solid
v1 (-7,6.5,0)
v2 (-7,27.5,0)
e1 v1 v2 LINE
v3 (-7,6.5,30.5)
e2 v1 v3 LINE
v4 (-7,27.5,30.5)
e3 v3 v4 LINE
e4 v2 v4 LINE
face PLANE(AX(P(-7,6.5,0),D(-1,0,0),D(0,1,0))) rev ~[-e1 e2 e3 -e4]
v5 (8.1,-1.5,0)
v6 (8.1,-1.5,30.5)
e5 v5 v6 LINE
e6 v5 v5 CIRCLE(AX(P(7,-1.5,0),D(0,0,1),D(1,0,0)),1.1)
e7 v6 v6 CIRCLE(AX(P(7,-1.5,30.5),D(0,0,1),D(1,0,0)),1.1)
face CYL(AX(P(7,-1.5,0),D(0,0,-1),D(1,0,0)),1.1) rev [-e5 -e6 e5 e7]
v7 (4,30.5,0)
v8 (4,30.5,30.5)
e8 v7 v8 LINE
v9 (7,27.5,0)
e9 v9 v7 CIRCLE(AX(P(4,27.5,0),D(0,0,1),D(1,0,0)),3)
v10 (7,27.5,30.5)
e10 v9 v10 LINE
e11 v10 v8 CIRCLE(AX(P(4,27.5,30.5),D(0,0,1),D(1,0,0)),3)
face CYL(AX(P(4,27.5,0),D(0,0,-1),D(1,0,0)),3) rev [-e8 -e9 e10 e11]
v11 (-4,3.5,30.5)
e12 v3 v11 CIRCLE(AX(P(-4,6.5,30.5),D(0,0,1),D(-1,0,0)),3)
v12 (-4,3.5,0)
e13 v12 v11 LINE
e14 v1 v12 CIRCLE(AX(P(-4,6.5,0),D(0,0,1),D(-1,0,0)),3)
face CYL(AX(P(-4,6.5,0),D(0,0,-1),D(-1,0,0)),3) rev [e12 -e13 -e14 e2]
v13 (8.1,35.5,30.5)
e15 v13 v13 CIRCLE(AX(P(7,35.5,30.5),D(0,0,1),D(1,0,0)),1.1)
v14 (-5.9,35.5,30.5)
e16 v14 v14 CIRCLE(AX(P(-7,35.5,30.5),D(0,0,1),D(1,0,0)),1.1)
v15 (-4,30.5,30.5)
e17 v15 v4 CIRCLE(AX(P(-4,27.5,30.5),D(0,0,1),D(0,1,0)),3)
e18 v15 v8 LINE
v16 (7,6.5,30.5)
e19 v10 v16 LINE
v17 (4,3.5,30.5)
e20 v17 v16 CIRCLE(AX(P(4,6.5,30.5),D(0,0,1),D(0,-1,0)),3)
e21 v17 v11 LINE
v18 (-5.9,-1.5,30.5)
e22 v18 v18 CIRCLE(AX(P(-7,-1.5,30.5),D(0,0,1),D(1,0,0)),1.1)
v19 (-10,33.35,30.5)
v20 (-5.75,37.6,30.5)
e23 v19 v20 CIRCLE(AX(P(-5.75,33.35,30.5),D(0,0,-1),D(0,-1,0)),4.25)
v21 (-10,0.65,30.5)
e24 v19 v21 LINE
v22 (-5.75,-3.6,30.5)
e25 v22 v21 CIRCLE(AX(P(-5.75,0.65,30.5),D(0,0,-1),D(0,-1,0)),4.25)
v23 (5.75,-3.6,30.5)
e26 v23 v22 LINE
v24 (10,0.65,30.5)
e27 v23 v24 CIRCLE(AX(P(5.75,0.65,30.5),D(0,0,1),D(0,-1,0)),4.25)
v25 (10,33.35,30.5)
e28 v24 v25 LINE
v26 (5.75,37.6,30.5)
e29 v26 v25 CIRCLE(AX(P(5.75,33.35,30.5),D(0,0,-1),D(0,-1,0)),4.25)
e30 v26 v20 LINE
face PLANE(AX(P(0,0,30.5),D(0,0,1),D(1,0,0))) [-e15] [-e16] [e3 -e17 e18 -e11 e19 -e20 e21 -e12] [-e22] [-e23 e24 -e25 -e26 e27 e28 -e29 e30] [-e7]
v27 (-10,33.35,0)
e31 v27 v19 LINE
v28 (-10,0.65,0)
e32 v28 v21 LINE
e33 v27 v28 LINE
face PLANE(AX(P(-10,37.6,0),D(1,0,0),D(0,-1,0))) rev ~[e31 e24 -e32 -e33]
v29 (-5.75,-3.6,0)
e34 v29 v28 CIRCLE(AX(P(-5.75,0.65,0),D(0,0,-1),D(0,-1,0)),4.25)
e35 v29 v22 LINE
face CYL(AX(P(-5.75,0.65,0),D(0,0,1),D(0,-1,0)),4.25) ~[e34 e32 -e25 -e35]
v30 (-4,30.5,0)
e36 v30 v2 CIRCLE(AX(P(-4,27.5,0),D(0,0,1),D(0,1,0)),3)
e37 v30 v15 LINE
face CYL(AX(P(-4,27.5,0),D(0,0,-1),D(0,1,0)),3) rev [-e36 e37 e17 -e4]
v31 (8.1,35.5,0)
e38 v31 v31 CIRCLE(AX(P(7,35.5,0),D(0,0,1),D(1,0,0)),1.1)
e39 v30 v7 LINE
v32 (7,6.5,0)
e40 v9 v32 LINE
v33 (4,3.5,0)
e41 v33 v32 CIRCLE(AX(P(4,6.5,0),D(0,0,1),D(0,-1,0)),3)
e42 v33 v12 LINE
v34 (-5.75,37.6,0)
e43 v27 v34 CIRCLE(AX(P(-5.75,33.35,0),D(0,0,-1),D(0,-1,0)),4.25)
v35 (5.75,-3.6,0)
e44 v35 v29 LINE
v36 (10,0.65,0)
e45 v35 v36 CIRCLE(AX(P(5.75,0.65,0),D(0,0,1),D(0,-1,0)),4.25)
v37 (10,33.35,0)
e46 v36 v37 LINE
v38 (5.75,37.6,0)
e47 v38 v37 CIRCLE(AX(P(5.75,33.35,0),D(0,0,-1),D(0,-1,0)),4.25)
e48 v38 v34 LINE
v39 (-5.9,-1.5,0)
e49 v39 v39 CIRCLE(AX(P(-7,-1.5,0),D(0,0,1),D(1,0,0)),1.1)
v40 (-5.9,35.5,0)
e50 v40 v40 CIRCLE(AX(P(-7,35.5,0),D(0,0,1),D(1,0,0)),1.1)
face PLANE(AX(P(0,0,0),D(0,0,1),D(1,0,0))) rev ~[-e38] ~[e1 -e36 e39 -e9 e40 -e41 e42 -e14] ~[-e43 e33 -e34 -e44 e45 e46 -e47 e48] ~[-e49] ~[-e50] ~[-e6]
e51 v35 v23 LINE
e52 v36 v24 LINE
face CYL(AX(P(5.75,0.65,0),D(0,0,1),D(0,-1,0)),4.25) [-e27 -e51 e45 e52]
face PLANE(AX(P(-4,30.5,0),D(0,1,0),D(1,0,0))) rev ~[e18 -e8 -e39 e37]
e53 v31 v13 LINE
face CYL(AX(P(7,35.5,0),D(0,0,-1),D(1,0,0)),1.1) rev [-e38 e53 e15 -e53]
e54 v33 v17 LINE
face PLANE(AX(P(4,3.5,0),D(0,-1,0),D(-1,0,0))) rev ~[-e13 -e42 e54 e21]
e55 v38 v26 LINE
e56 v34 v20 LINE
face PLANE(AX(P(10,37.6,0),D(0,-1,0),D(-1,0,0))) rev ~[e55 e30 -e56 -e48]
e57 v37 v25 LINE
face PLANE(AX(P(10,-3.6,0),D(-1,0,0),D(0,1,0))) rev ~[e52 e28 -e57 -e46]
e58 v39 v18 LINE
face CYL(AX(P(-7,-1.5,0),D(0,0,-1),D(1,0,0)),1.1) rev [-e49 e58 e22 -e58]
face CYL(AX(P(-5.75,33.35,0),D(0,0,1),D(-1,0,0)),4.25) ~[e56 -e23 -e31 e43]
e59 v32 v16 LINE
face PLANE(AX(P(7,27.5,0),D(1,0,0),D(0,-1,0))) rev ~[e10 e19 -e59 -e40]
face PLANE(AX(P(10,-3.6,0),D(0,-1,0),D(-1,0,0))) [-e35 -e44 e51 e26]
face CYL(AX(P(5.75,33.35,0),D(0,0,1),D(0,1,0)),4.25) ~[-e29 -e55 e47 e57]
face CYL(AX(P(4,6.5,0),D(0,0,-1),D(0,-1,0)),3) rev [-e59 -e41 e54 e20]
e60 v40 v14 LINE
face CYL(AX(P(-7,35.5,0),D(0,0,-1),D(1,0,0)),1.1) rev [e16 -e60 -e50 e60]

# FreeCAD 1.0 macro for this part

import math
import FreeCAD as App
import Part
import Sketcher

V = App.Vector


def edges_at(feature, points):
    """Names of the edges that pass closest to the given points."""
    edges = feature.Shape.Edges
    near = lambda p: min(range(len(edges)), key=lambda i: edges[i].distToShape(Part.Vertex(*p))[0])
    return sorted({f"Edge{near(p) + 1}" for p in points})

doc = App.newDocument("Part")
params = doc.addObject("Spreadsheet::Sheet", "Params")
for row, (alias, value) in enumerate([
    ("sketch1_radius", "3 mm"),
    ("sketch1_diameter", "2.2 mm"),
    ("sketch1_width", "20 mm"),
    ("sketch1_width2", "8 mm"),
    ("sketch1_height", "21 mm"),
    ("pad1_length", "30.5 mm"),
    ("fillet_radius", "4.25 mm"),
], start=1):
    params.set(f"A{row}", alias)
    params.set(f"B{row}", "=" + value)
    params.setAlias(f"B{row}", alias)

body = doc.addObject("PartDesign::Body", "Body")

sketch1 = body.newObject("Sketcher::SketchObject", "Sketch")
sketch1.AttachmentSupport = (doc.getObject("XY_Plane"), [""])
sketch1.MapMode = "FlatFace"
sketch1.addGeometry(Part.LineSegment(V(-10, -3.6, 0), V(10, -3.6, 0)), False)
sketch1.addGeometry(Part.LineSegment(V(10, -3.6, 0), V(10, 37.6, 0)), False)
sketch1.addGeometry(Part.LineSegment(V(10, 37.6, 0), V(-10, 37.6, 0)), False)
sketch1.addGeometry(Part.LineSegment(V(-10, 37.6, 0), V(-10, -3.6, 0)), False)
sketch1.addGeometry(Part.Circle(V(-7, -1.5, 0), V(0, 0, 1), 1.1), False)
sketch1.addGeometry(Part.Circle(V(7, -1.5, 0), V(0, 0, 1), 1.1), False)
sketch1.addGeometry(Part.Circle(V(-7, 35.5, 0), V(0, 0, 1), 1.1), False)
sketch1.addGeometry(Part.ArcOfCircle(Part.Circle(V(-4, 6.5, 0), V(0, 0, 1), 3), math.radians(180), math.radians(270)), False)
sketch1.addGeometry(Part.LineSegment(V(-7, 6.5, 0), V(-7, 27.5, 0)), False)
sketch1.addGeometry(Part.ArcOfCircle(Part.Circle(V(-4, 27.5, 0), V(0, 0, 1), 3), math.radians(90), math.radians(180)), False)
sketch1.addGeometry(Part.LineSegment(V(-4, 30.5, 0), V(4, 30.5, 0)), False)
sketch1.addGeometry(Part.ArcOfCircle(Part.Circle(V(4, 27.5, 0), V(0, 0, 1), 3), math.radians(0), math.radians(90)), False)
sketch1.addGeometry(Part.LineSegment(V(7, 27.5, 0), V(7, 6.5, 0)), False)
sketch1.addGeometry(Part.ArcOfCircle(Part.Circle(V(4, 6.5, 0), V(0, 0, 1), 3), math.radians(-90), math.radians(0)), False)
sketch1.addGeometry(Part.LineSegment(V(4, 3.5, 0), V(-4, 3.5, 0)), False)
sketch1.addGeometry(Part.Circle(V(7, 35.5, 0), V(0, 0, 1), 1.1), False)
sketch1.addConstraint(Sketcher.Constraint("Coincident", 0, 2, 1, 1))
sketch1.addConstraint(Sketcher.Constraint("Coincident", 1, 2, 2, 1))
sketch1.addConstraint(Sketcher.Constraint("Coincident", 2, 2, 3, 1))
sketch1.addConstraint(Sketcher.Constraint("Coincident", 3, 2, 0, 1))
sketch1.addConstraint(Sketcher.Constraint("Tangent", 7, 1, 8, 1))
sketch1.addConstraint(Sketcher.Constraint("Tangent", 8, 2, 9, 2))
sketch1.addConstraint(Sketcher.Constraint("Tangent", 9, 1, 10, 1))
sketch1.addConstraint(Sketcher.Constraint("Tangent", 10, 2, 11, 2))
sketch1.addConstraint(Sketcher.Constraint("Tangent", 11, 1, 12, 1))
sketch1.addConstraint(Sketcher.Constraint("Tangent", 12, 2, 13, 2))
sketch1.addConstraint(Sketcher.Constraint("Tangent", 13, 1, 14, 1))
sketch1.addConstraint(Sketcher.Constraint("Tangent", 14, 2, 7, 2))
sketch1.addConstraint(Sketcher.Constraint("Horizontal", 0))
sketch1.addConstraint(Sketcher.Constraint("Vertical", 1))
sketch1.addConstraint(Sketcher.Constraint("Horizontal", 2))
sketch1.addConstraint(Sketcher.Constraint("Vertical", 3))
sketch1.addConstraint(Sketcher.Constraint("Vertical", 8))
sketch1.addConstraint(Sketcher.Constraint("Horizontal", 10))
sketch1.addConstraint(Sketcher.Constraint("Vertical", 12))
sketch1.addConstraint(Sketcher.Constraint("Horizontal", 14))
sketch1.addConstraint(Sketcher.Constraint("Equal", 4, 5))
sketch1.addConstraint(Sketcher.Constraint("Equal", 5, 6))
sketch1.addConstraint(Sketcher.Constraint("Equal", 7, 9))
sketch1.addConstraint(Sketcher.Constraint("Equal", 9, 11))
sketch1.addConstraint(Sketcher.Constraint("Equal", 11, 13))
sketch1.addConstraint(Sketcher.Constraint("Equal", 6, 15))
sketch1.addConstraint(Sketcher.Constraint("Symmetric", 4, 3, 5, 3, -2))
sketch1.addConstraint(Sketcher.Constraint("Symmetric", 6, 3, 15, 3, -2))
sketch1.addConstraint(Sketcher.Constraint("Vertical", 4, 3, 6, 3))
sketch1.addConstraint(Sketcher.Constraint("Vertical", 6, 3, 7, 1))
sketch1.addConstraint(Sketcher.Constraint("Vertical", 15, 3, 11, 1))
sketch1.addConstraint(Sketcher.Constraint("Radius", 7, 3.0))
sketch1.addConstraint(Sketcher.Constraint("Diameter", 4, 2.2))
sketch1.addConstraint(Sketcher.Constraint("DistanceX", 0, 1, 0, 2, 20.0))
sketch1.addConstraint(Sketcher.Constraint("DistanceX", 10, 1, 10, 2, 8.0))
sketch1.addConstraint(Sketcher.Constraint("DistanceY", 8, 1, 8, 2, 21.0))
sketch1.addConstraint(Sketcher.Constraint("DistanceY", 1, 1, 1, 2, 41.2))
sketch1.addConstraint(Sketcher.Constraint("DistanceX", -1, 1, 0, 2, 10.0))
sketch1.addConstraint(Sketcher.Constraint("DistanceY", 4, 3, 6, 3, 37.0))
sketch1.addConstraint(Sketcher.Constraint("DistanceY", 4, 3, 7, 3, 8.0))
sketch1.addConstraint(Sketcher.Constraint("DistanceY", 4, 3, -1, 1, 1.5))
sketch1.addConstraint(Sketcher.Constraint("DistanceY", 0, 2, -1, 1, 3.6))
sketch1.setExpression("Constraints[31]", "Params.sketch1_radius")
sketch1.setExpression("Constraints[32]", "Params.sketch1_diameter")
sketch1.setExpression("Constraints[33]", "Params.sketch1_width")
sketch1.setExpression("Constraints[34]", "Params.sketch1_width2")
sketch1.setExpression("Constraints[35]", "Params.sketch1_height")
pad1 = body.newObject("PartDesign::Pad", "Pad")
pad1.Profile = sketch1
pad1.setExpression("Length", "Params.pad1_length")
doc.recompute()

fillet = body.newObject("PartDesign::Fillet", "Fillet")
fillet.Base = (pad1, edges_at(pad1, [
    (10, 37.6, 15.25),
    (-10, 37.6, 15.25),
    (10, -3.6, 15.25),
    (-10, -3.6, 15.25),
]))
fillet.setExpression("Radius", "Params.fillet_radius")

doc.recompute()
